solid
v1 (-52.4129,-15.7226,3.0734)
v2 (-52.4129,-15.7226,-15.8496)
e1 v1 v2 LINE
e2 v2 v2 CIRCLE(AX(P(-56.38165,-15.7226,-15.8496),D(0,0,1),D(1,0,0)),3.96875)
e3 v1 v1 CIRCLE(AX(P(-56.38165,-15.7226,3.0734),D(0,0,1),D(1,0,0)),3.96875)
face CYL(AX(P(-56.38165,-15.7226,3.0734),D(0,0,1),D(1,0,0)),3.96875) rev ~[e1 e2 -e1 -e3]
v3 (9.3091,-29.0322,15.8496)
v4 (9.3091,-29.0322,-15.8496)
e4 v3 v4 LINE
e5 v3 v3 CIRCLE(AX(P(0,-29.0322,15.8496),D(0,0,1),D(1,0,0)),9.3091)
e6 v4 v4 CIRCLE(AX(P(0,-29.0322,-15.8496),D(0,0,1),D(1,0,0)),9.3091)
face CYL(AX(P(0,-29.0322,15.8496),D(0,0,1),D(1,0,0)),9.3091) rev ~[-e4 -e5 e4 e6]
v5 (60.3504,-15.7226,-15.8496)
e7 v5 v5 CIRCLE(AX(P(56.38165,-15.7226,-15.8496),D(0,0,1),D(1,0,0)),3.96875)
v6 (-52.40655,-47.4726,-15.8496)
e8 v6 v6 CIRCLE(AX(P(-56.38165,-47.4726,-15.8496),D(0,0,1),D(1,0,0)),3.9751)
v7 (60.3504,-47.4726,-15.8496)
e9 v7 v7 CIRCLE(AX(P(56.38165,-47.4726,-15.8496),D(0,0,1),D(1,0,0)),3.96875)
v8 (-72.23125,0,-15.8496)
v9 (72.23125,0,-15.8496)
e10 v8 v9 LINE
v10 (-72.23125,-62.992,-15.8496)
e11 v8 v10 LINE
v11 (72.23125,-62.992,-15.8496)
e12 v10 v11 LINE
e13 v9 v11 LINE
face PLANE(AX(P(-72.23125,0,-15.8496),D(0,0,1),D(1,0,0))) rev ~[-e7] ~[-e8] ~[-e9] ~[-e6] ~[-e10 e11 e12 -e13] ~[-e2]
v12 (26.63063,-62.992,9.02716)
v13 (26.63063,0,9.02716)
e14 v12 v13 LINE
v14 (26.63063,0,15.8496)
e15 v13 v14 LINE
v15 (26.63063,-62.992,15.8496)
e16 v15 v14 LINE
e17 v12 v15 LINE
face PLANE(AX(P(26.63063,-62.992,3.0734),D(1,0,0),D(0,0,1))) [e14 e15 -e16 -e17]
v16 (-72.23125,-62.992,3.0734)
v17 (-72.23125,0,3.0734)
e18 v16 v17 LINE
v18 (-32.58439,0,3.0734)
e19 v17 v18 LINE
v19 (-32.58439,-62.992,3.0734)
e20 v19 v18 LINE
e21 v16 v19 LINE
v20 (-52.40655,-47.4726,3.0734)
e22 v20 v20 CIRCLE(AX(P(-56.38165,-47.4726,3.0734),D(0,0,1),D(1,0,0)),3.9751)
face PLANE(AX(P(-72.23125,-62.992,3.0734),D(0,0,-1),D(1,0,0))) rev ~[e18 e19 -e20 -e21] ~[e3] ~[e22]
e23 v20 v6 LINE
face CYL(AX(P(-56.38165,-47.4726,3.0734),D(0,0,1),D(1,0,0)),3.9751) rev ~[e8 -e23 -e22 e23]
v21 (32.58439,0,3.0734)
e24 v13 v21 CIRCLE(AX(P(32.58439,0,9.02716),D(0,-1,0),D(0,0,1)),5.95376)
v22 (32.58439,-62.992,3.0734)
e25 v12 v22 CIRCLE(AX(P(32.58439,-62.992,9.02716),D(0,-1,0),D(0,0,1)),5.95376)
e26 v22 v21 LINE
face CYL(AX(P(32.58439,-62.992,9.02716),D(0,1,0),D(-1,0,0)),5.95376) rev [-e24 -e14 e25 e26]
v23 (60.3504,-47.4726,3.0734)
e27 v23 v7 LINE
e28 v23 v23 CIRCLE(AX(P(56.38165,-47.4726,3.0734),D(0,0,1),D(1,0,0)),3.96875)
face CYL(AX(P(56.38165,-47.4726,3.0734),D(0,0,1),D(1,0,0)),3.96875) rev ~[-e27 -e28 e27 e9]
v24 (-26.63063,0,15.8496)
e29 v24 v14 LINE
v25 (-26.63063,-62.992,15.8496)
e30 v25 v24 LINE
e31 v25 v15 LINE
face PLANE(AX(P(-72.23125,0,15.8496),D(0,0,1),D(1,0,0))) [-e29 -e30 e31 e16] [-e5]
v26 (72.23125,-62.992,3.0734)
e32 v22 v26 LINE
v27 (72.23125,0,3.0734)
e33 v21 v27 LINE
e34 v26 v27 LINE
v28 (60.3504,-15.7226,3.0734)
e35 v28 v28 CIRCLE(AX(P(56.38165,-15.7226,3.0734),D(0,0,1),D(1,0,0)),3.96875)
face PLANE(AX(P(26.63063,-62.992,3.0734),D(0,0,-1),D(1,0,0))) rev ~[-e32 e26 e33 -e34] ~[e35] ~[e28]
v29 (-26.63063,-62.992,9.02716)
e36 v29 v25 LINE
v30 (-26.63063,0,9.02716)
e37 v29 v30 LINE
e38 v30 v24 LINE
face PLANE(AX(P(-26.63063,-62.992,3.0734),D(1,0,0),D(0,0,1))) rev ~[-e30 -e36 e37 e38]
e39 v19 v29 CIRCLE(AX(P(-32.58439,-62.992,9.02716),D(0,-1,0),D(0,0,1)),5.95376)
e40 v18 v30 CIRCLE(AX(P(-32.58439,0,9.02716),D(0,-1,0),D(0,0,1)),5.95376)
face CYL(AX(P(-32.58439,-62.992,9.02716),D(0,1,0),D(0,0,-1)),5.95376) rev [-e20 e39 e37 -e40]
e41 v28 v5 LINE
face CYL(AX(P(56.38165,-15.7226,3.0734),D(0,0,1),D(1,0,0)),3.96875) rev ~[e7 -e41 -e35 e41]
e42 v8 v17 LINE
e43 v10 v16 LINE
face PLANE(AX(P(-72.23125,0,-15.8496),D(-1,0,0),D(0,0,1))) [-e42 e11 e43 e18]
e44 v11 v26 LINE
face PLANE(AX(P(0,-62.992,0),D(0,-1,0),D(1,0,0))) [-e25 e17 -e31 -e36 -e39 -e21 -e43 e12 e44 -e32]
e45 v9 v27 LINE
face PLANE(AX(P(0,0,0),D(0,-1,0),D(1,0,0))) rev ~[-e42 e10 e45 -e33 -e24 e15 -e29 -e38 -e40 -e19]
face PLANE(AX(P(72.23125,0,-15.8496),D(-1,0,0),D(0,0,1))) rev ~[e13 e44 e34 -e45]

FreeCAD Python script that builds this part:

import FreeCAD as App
import Part
import Sketcher
Q = App.Units.Quantity


def edges_at(feature, points):
    """Names of the edges that pass closest to the given points."""
    edges = feature.Shape.Edges
    near = lambda p: min(range(len(edges)), key=lambda i: edges[i].distToShape(Part.Vertex(*p))[0])
    return sorted({f"Edge{near(p) + 1}" for p in points})

doc = App.newDocument("Part")
params = doc.addObject("Spreadsheet::Sheet", "Params")
for row, (alias, value) in enumerate([
    ("sketch1_width", "5.6875 in"),
    ("sketch1_height", "1.248 in"),
    ("pad1_length", "2.48 in"),
    ("sketch2_height", "0.503 in"),
    ("fillet_radius", "0.2344 in"),
    ("sketch3_diameter", "0.733 in"),
    ("sketch4_diameter", "0.3125 in"),
    ("sketch4_diameter2", "0.313 in"),
    ("sketch5_diameter", "0.3125 in"),
], start=1):
    params.set(f"A{row}", alias)
    params.set(f"B{row}", "=" + value)
    params.setAlias(f"B{row}", alias)

body = doc.addObject("PartDesign::Body", "Body")

# Sketch on XZ plane
sketch1 = body.newObject("Sketcher::SketchObject", "Sketch")
sketch1.AttachmentSupport = (doc.getObject("XZ_Plane"), [""])
sketch1.MapMode = "FlatFace"
sketch1.addGeometry(Part.LineSegment(App.Vector(-72, 16, 0), App.Vector(-72, -16, 0)), False)
sketch1.addGeometry(Part.LineSegment(App.Vector(-72, -16, 0), App.Vector(72, -16, 0)), False)
sketch1.addGeometry(Part.LineSegment(App.Vector(72, -16, 0), App.Vector(72, 16, 0)), False)
sketch1.addGeometry(Part.LineSegment(App.Vector(72, 16, 0), App.Vector(-72, 16, 0)), False)
sketch1.addConstraint(Sketcher.Constraint("Coincident", 0, 2, 1, 1))
sketch1.addConstraint(Sketcher.Constraint("Coincident", 1, 2, 2, 1))
sketch1.addConstraint(Sketcher.Constraint("Coincident", 2, 2, 3, 1))
sketch1.addConstraint(Sketcher.Constraint("Coincident", 3, 2, 0, 1))
sketch1.addConstraint(Sketcher.Constraint("Vertical", 0))
sketch1.addConstraint(Sketcher.Constraint("Horizontal", 1))
sketch1.addConstraint(Sketcher.Constraint("Vertical", 2))
sketch1.addConstraint(Sketcher.Constraint("Horizontal", 3))
sketch1.addConstraint(Sketcher.Constraint("Symmetric", 0, 2, 2, 2, -1, 1))
sketch1.addConstraint(Sketcher.Constraint("DistanceX", 1, 1, 1, 2, Q("5.6875 in")))
sketch1.addConstraint(Sketcher.Constraint("DistanceY", 0, 2, 0, 1, Q("1.248 in")))
sketch1.setExpression("Constraints[9]", "Params.sketch1_width")
sketch1.setExpression("Constraints[10]", "Params.sketch1_height")
pad1 = body.newObject("PartDesign::Pad", "Pad")
pad1.Profile = sketch1
pad1.setExpression("Length", "Params.pad1_length")

# Sketch on XZ plane
sketch2 = body.newObject("Sketcher::SketchObject", "Sketch001")
sketch2.AttachmentSupport = (doc.getObject("XZ_Plane"), [""])
sketch2.MapMode = "FlatFace"
sketch2.AttachmentOffset = App.Placement(App.Vector(0, 0, 2.48 * 25.4), App.Rotation())
sketch2.addGeometry(Part.LineSegment(App.Vector(-72, 16, 0), App.Vector(-72, 3, 0)), False)
sketch2.addGeometry(Part.LineSegment(App.Vector(-72, 3, 0), App.Vector(-27, 3, 0)), False)
sketch2.addGeometry(Part.LineSegment(App.Vector(-27, 3, 0), App.Vector(-27, 16, 0)), False)
sketch2.addGeometry(Part.LineSegment(App.Vector(-27, 16, 0), App.Vector(-72, 16, 0)), False)
sketch2.addGeometry(Part.LineSegment(App.Vector(27, 16, 0), App.Vector(27, 3, 0)), False)
sketch2.addGeometry(Part.LineSegment(App.Vector(27, 3, 0), App.Vector(72, 3, 0)), False)
sketch2.addGeometry(Part.LineSegment(App.Vector(72, 3, 0), App.Vector(72, 16, 0)), False)
sketch2.addGeometry(Part.LineSegment(App.Vector(72, 16, 0), App.Vector(27, 16, 0)), False)
sketch2.addConstraint(Sketcher.Constraint("Coincident", 0, 2, 1, 1))
sketch2.addConstraint(Sketcher.Constraint("Coincident", 1, 2, 2, 1))
sketch2.addConstraint(Sketcher.Constraint("Coincident", 2, 2, 3, 1))
sketch2.addConstraint(Sketcher.Constraint("Coincident", 3, 2, 0, 1))
sketch2.addConstraint(Sketcher.Constraint("Coincident", 4, 2, 5, 1))
sketch2.addConstraint(Sketcher.Constraint("Coincident", 5, 2, 6, 1))
sketch2.addConstraint(Sketcher.Constraint("Coincident", 6, 2, 7, 1))
sketch2.addConstraint(Sketcher.Constraint("Coincident", 7, 2, 4, 1))
sketch2.addConstraint(Sketcher.Constraint("Vertical", 0))
sketch2.addConstraint(Sketcher.Constraint("Horizontal", 1))
sketch2.addConstraint(Sketcher.Constraint("Vertical", 2))
sketch2.addConstraint(Sketcher.Constraint("Horizontal", 3))
sketch2.addConstraint(Sketcher.Constraint("Vertical", 4))
sketch2.addConstraint(Sketcher.Constraint("Horizontal", 5))
sketch2.addConstraint(Sketcher.Constraint("Vertical", 6))
sketch2.addConstraint(Sketcher.Constraint("Horizontal", 7))
sketch2.addConstraint(Sketcher.Constraint("Symmetric", 1, 2, 4, 2, -2))
sketch2.addConstraint(Sketcher.Constraint("Symmetric", 3, 2, 6, 2, -2))
sketch2.addConstraint(Sketcher.Constraint("DistanceY", 0, 2, 0, 1, Q("0.503 in")))
sketch2.addConstraint(Sketcher.Constraint("DistanceX", 1, 1, 1, 2, Q("1.7953 in")))
sketch2.addConstraint(Sketcher.Constraint("DistanceX", 0, 2, -1, 1, Q("2.84375 in")))
sketch2.addConstraint(Sketcher.Constraint("DistanceY", -1, 1, 0, 2, Q("0.121 in")))
sketch2.setExpression("Constraints[18]", "Params.sketch2_height")
pocket1 = body.newObject("PartDesign::Pocket", "Pocket")
pocket1.Profile = sketch2
pocket1.Type = "ThroughAll"
doc.recompute()

fillet = body.newObject("PartDesign::Fillet", "Fillet")
fillet.Base = (pocket1, edges_at(pocket1, [(-26.631, -31.496, 3.073), (26.631, -31.496, 3.073)]))
fillet.setExpression("Radius", "Params.fillet_radius")

# Sketch on XY plane
sketch3 = body.newObject("Sketcher::SketchObject", "Sketch002")
sketch3.AttachmentSupport = (doc.getObject("XY_Plane"), [""])
sketch3.MapMode = "FlatFace"
sketch3.AttachmentOffset = App.Placement(App.Vector(0, 0, 0.624 * 25.4), App.Rotation())
sketch3.addGeometry(Part.Circle(App.Vector(0, -29, 0), App.Vector(0, 0, 1), 9), False)
sketch3.addConstraint(Sketcher.Constraint("PointOnObject", 0, 3, -2))
sketch3.addConstraint(Sketcher.Constraint("Diameter", 0, Q("0.733 in")))
sketch3.addConstraint(Sketcher.Constraint("DistanceY", 0, 3, -1, 1, Q("1.143 in")))
sketch3.setExpression("Constraints[1]", "Params.sketch3_diameter")
pocket2 = body.newObject("PartDesign::Pocket", "Pocket001")
pocket2.Profile = sketch3
pocket2.Type = "ThroughAll"

# Sketch on XY plane
sketch4 = body.newObject("Sketcher::SketchObject", "Sketch003")
sketch4.AttachmentSupport = (doc.getObject("XY_Plane"), [""])
sketch4.MapMode = "FlatFace"
sketch4.AttachmentOffset = App.Placement(App.Vector(0, 0, 0.121 * 25.4), App.Rotation())
sketch4.addGeometry(Part.Circle(App.Vector(-56.4, -15.7, 0), App.Vector(0, 0, 1), 4), False)
sketch4.addGeometry(Part.Circle(App.Vector(-56.4, -47.5, 0), App.Vector(0, 0, 1), 4), False)
sketch4.addConstraint(Sketcher.Constraint("Vertical", 0, 3, 1, 3))
sketch4.addConstraint(Sketcher.Constraint("Diameter", 0, Q("0.3125 in")))
sketch4.addConstraint(Sketcher.Constraint("Diameter", 1, Q("0.313 in")))
sketch4.addConstraint(Sketcher.Constraint("DistanceY", 1, 3, 0, 3, Q("1.25 in")))
sketch4.addConstraint(Sketcher.Constraint("DistanceY", 0, 3, -1, 1, Q("0.619 in")))
sketch4.addConstraint(Sketcher.Constraint("DistanceX", 0, 3, -1, 1, 56.38165))
sketch4.setExpression("Constraints[1]", "Params.sketch4_diameter")
sketch4.setExpression("Constraints[2]", "Params.sketch4_diameter2")
pocket3 = body.newObject("PartDesign::Pocket", "Pocket002")
pocket3.Profile = sketch4
pocket3.Type = "ThroughAll"

# Sketch on XY plane
sketch5 = body.newObject("Sketcher::SketchObject", "Sketch004")
sketch5.AttachmentSupport = (doc.getObject("XY_Plane"), [""])
sketch5.MapMode = "FlatFace"
sketch5.AttachmentOffset = App.Placement(App.Vector(0, 0, 0.121 * 25.4), App.Rotation())
sketch5.addGeometry(Part.Circle(App.Vector(56.4, -15.7, 0), App.Vector(0, 0, 1), 4), False)
sketch5.addGeometry(Part.Circle(App.Vector(56.4, -47.5, 0), App.Vector(0, 0, 1), 4), False)
sketch5.addConstraint(Sketcher.Constraint("Equal", 0, 1))
sketch5.addConstraint(Sketcher.Constraint("Vertical", 0, 3, 1, 3))
sketch5.addConstraint(Sketcher.Constraint("Diameter", 0, Q("0.3125 in")))
sketch5.addConstraint(Sketcher.Constraint("DistanceY", 1, 3, 0, 3, Q("1.25 in")))
sketch5.addConstraint(Sketcher.Constraint("DistanceY", 0, 3, -1, 1, Q("0.619 in")))
sketch5.addConstraint(Sketcher.Constraint("DistanceX", -1, 1, 0, 3, 56.38165))
sketch5.setExpression("Constraints[2]", "Params.sketch5_diameter")
pocket4 = body.newObject("PartDesign::Pocket", "Pocket003")
pocket4.Profile = sketch5
pocket4.Type = "ThroughAll"

doc.recompute()
